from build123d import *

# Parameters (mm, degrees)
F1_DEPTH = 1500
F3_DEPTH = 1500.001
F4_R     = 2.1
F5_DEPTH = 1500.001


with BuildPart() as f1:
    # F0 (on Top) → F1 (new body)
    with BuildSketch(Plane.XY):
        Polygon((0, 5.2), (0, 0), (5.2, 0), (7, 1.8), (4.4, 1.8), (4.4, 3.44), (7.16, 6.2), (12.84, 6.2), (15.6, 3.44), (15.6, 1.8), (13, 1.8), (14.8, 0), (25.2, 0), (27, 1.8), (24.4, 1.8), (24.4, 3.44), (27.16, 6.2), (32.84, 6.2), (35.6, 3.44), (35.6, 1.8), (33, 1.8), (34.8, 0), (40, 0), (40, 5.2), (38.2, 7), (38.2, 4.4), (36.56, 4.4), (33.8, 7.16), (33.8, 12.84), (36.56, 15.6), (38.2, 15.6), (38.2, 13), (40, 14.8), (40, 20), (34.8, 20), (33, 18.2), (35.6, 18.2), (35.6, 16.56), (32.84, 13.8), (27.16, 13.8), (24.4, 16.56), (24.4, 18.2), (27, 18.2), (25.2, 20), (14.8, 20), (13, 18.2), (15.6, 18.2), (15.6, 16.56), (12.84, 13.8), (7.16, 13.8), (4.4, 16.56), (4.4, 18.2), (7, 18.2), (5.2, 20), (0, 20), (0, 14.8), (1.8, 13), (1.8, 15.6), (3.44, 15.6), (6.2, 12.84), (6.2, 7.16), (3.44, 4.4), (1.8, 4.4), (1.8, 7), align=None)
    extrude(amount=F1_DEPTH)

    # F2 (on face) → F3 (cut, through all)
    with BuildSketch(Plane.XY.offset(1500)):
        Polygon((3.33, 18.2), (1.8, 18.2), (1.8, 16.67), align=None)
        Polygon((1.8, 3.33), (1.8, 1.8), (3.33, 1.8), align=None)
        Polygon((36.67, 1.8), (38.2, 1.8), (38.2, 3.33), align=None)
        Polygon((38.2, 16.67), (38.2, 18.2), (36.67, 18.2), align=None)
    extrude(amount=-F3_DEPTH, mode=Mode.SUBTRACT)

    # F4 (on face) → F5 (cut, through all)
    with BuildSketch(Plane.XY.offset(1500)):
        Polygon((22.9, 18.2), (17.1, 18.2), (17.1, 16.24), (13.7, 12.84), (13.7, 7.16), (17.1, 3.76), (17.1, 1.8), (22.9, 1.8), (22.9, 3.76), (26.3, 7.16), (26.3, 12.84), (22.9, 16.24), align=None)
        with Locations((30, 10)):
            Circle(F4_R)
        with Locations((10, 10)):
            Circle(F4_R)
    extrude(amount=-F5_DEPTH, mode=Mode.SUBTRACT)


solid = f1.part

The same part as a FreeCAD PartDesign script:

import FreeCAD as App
import Part
import Sketcher

V = App.Vector
Q = App.Units.Quantity

doc = App.newDocument("Part")
body = doc.addObject("PartDesign::Body", "Body")

# Sketch on XY plane
sketch1 = body.newObject("Sketcher::SketchObject", "Sketch")
sketch1.AttachmentSupport = (doc.getObject("XY_Plane"), [""])
sketch1.MapMode = "FlatFace"
sketch1.addGeometry(Part.LineSegment(V(0, 5.2, 0), V(0, 0, 0)), False)
sketch1.addGeometry(Part.LineSegment(V(0, 0, 0), V(5.2, 0, 0)), False)
sketch1.addGeometry(Part.LineSegment(V(5.2, 0, 0), V(7, 1.8, 0)), False)
sketch1.addGeometry(Part.LineSegment(V(7, 1.8, 0), V(4.4, 1.8, 0)), False)
sketch1.addGeometry(Part.LineSegment(V(4.4, 1.8, 0), V(4.4, 3.4, 0)), False)
sketch1.addGeometry(Part.LineSegment(V(4.4, 3.4, 0), V(7.2, 6.2, 0)), False)
sketch1.addGeometry(Part.LineSegment(V(7.2, 6.2, 0), V(12.8, 6.2, 0)), False)
sketch1.addGeometry(Part.LineSegment(V(12.8, 6.2, 0), V(15.6, 3.4, 0)), False)
sketch1.addGeometry(Part.LineSegment(V(15.6, 3.4, 0), V(15.6, 1.8, 0)), False)
sketch1.addGeometry(Part.LineSegment(V(15.6, 1.8, 0), V(13, 1.8, 0)), False)
sketch1.addGeometry(Part.LineSegment(V(13, 1.8, 0), V(14.8, 0, 0)), False)
sketch1.addGeometry(Part.LineSegment(V(14.8, 0, 0), V(25.2, 0, 0)), False)
sketch1.addGeometry(Part.LineSegment(V(25.2, 0, 0), V(27, 1.8, 0)), False)
sketch1.addGeometry(Part.LineSegment(V(27, 1.8, 0), V(24.4, 1.8, 0)), False)
sketch1.addGeometry(Part.LineSegment(V(24.4, 1.8, 0), V(24.4, 3.4, 0)), False)
sketch1.addGeometry(Part.LineSegment(V(24.4, 3.4, 0), V(27.2, 6.2, 0)), False)
sketch1.addGeometry(Part.LineSegment(V(27.2, 6.2, 0), V(32.8, 6.2, 0)), False)
sketch1.addGeometry(Part.LineSegment(V(32.8, 6.2, 0), V(35.6, 3.4, 0)), False)
sketch1.addGeometry(Part.LineSegment(V(35.6, 3.4, 0), V(35.6, 1.8, 0)), False)
sketch1.addGeometry(Part.LineSegment(V(35.6, 1.8, 0), V(33, 1.8, 0)), False)
sketch1.addGeometry(Part.LineSegment(V(33, 1.8, 0), V(34.8, 0, 0)), False)
sketch1.addGeometry(Part.LineSegment(V(34.8, 0, 0), V(40, 0, 0)), False)
sketch1.addGeometry(Part.LineSegment(V(40, 0, 0), V(40, 5.2, 0)), False)
sketch1.addGeometry(Part.LineSegment(V(40, 5.2, 0), V(38.2, 7, 0)), False)
sketch1.addGeometry(Part.LineSegment(V(38.2, 7, 0), V(38.2, 4.4, 0)), False)
sketch1.addGeometry(Part.LineSegment(V(38.2, 4.4, 0), V(36.6, 4.4, 0)), False)
sketch1.addGeometry(Part.LineSegment(V(36.6, 4.4, 0), V(33.8, 7.2, 0)), False)
sketch1.addGeometry(Part.LineSegment(V(33.8, 7.2, 0), V(33.8, 12.8, 0)), False)
sketch1.addGeometry(Part.LineSegment(V(33.8, 12.8, 0), V(36.6, 15.6, 0)), False)
sketch1.addGeometry(Part.LineSegment(V(36.6, 15.6, 0), V(38.2, 15.6, 0)), False)
sketch1.addGeometry(Part.LineSegment(V(38.2, 15.6, 0), V(38.2, 13, 0)), False)
sketch1.addGeometry(Part.LineSegment(V(38.2, 13, 0), V(40, 14.8, 0)), False)
sketch1.addGeometry(Part.LineSegment(V(40, 14.8, 0), V(40, 20, 0)), False)
sketch1.addGeometry(Part.LineSegment(V(40, 20, 0), V(34.8, 20, 0)), False)
sketch1.addGeometry(Part.LineSegment(V(34.8, 20, 0), V(33, 18.2, 0)), False)
sketch1.addGeometry(Part.LineSegment(V(33, 18.2, 0), V(35.6, 18.2, 0)), False)
sketch1.addGeometry(Part.LineSegment(V(35.6, 18.2, 0), V(35.6, 16.6, 0)), False)
sketch1.addGeometry(Part.LineSegment(V(35.6, 16.6, 0), V(32.8, 13.8, 0)), False)
sketch1.addGeometry(Part.LineSegment(V(32.8, 13.8, 0), V(27.2, 13.8, 0)), False)
sketch1.addGeometry(Part.LineSegment(V(27.2, 13.8, 0), V(24.4, 16.6, 0)), False)
sketch1.addGeometry(Part.LineSegment(V(24.4, 16.6, 0), V(24.4, 18.2, 0)), False)
sketch1.addGeometry(Part.LineSegment(V(24.4, 18.2, 0), V(27, 18.2, 0)), False)
sketch1.addGeometry(Part.LineSegment(V(27, 18.2, 0), V(25.2, 20, 0)), False)
sketch1.addGeometry(Part.LineSegment(V(25.2, 20, 0), V(14.8, 20, 0)), False)
sketch1.addGeometry(Part.LineSegment(V(14.8, 20, 0), V(13, 18.2, 0)), False)
sketch1.addGeometry(Part.LineSegment(V(13, 18.2, 0), V(15.6, 18.2, 0)), False)
sketch1.addGeometry(Part.LineSegment(V(15.6, 18.2, 0), V(15.6, 16.6, 0)), False)
sketch1.addGeometry(Part.LineSegment(V(15.6, 16.6, 0), V(12.8, 13.8, 0)), False)
sketch1.addGeometry(Part.LineSegment(V(12.8, 13.8, 0), V(7.2, 13.8, 0)), False)
sketch1.addGeometry(Part.LineSegment(V(7.2, 13.8, 0), V(4.4, 16.6, 0)), False)
sketch1.addGeometry(Part.LineSegment(V(4.4, 16.6, 0), V(4.4, 18.2, 0)), False)
sketch1.addGeometry(Part.LineSegment(V(4.4, 18.2, 0), V(7, 18.2, 0)), False)
sketch1.addGeometry(Part.LineSegment(V(7, 18.2, 0), V(5.2, 20, 0)), False)
sketch1.addGeometry(Part.LineSegment(V(5.2, 20, 0), V(0, 20, 0)), False)
sketch1.addGeometry(Part.LineSegment(V(0, 20, 0), V(0, 14.8, 0)), False)
sketch1.addGeometry(Part.LineSegment(V(0, 14.8, 0), V(1.8, 13, 0)), False)
sketch1.addGeometry(Part.LineSegment(V(1.8, 13, 0), V(1.8, 15.6, 0)), False)
sketch1.addGeometry(Part.LineSegment(V(1.8, 15.6, 0), V(3.4, 15.6, 0)), False)
sketch1.addGeometry(Part.LineSegment(V(3.4, 15.6, 0), V(6.2, 12.8, 0)), False)
sketch1.addGeometry(Part.LineSegment(V(6.2, 12.8, 0), V(6.2, 7.2, 0)), False)
sketch1.addGeometry(Part.LineSegment(V(6.2, 7.2, 0), V(3.4, 4.4, 0)), False)
sketch1.addGeometry(Part.LineSegment(V(3.4, 4.4, 0), V(1.8, 4.4, 0)), False)
sketch1.addGeometry(Part.LineSegment(V(1.8, 4.4, 0), V(1.8, 7, 0)), False)
sketch1.addGeometry(Part.LineSegment(V(1.8, 7, 0), V(0, 5.2, 0)), False)
sketch1.addConstraint(Sketcher.Constraint("Coincident", 0, 2, 1, 1))
sketch1.addConstraint(Sketcher.Constraint("Coincident", 1, 2, 2, 1))
sketch1.addConstraint(Sketcher.Constraint("Coincident", 2, 2, 3, 1))
sketch1.addConstraint(Sketcher.Constraint("Coincident", 3, 2, 4, 1))
sketch1.addConstraint(Sketcher.Constraint("Coincident", 4, 2, 5, 1))
sketch1.addConstraint(Sketcher.Constraint("Coincident", 5, 2, 6, 1))
sketch1.addConstraint(Sketcher.Constraint("Coincident", 6, 2, 7, 1))
sketch1.addConstraint(Sketcher.Constraint("Coincident", 7, 2, 8, 1))
sketch1.addConstraint(Sketcher.Constraint("Coincident", 8, 2, 9, 1))
sketch1.addConstraint(Sketcher.Constraint("Coincident", 9, 2, 10, 1))
sketch1.addConstraint(Sketcher.Constraint("Coincident", 10, 2, 11, 1))
sketch1.addConstraint(Sketcher.Constraint("Coincident", 11, 2, 12, 1))
sketch1.addConstraint(Sketcher.Constraint("Coincident", 12, 2, 13, 1))
sketch1.addConstraint(Sketcher.Constraint("Coincident", 13, 2, 14, 1))
sketch1.addConstraint(Sketcher.Constraint("Coincident", 14, 2, 15, 1))
sketch1.addConstraint(Sketcher.Constraint("Coincident", 15, 2, 16, 1))
sketch1.addConstraint(Sketcher.Constraint("Coincident", 16, 2, 17, 1))
sketch1.addConstraint(Sketcher.Constraint("Coincident", 17, 2, 18, 1))
sketch1.addConstraint(Sketcher.Constraint("Coincident", 18, 2, 19, 1))
sketch1.addConstraint(Sketcher.Constraint("Coincident", 19, 2, 20, 1))
sketch1.addConstraint(Sketcher.Constraint("Coincident", 20, 2, 21, 1))
sketch1.addConstraint(Sketcher.Constraint("Coincident", 21, 2, 22, 1))
sketch1.addConstraint(Sketcher.Constraint("Coincident", 22, 2, 23, 1))
sketch1.addConstraint(Sketcher.Constraint("Coincident", 23, 2, 24, 1))
sketch1.addConstraint(Sketcher.Constraint("Coincident", 24, 2, 25, 1))
sketch1.addConstraint(Sketcher.Constraint("Coincident", 25, 2, 26, 1))
sketch1.addConstraint(Sketcher.Constraint("Coincident", 26, 2, 27, 1))
sketch1.addConstraint(Sketcher.Constraint("Coincident", 27, 2, 28, 1))
sketch1.addConstraint(Sketcher.Constraint("Coincident", 28, 2, 29, 1))
sketch1.addConstraint(Sketcher.Constraint("Coincident", 29, 2, 30, 1))
sketch1.addConstraint(Sketcher.Constraint("Coincident", 30, 2, 31, 1))
sketch1.addConstraint(Sketcher.Constraint("Coincident", 31, 2, 32, 1))
sketch1.addConstraint(Sketcher.Constraint("Coincident", 32, 2, 33, 1))
sketch1.addConstraint(Sketcher.Constraint("Coincident", 33, 2, 34, 1))
sketch1.addConstraint(Sketcher.Constraint("Coincident", 34, 2, 35, 1))
sketch1.addConstraint(Sketcher.Constraint("Coincident", 35, 2, 36, 1))
sketch1.addConstraint(Sketcher.Constraint("Coincident", 36, 2, 37, 1))
sketch1.addConstraint(Sketcher.Constraint("Coincident", 37, 2, 38, 1))
sketch1.addConstraint(Sketcher.Constraint("Coincident", 38, 2, 39, 1))
sketch1.addConstraint(Sketcher.Constraint("Coincident", 39, 2, 40, 1))
sketch1.addConstraint(Sketcher.Constraint("Coincident", 40, 2, 41, 1))
sketch1.addConstraint(Sketcher.Constraint("Coincident", 41, 2, 42, 1))
sketch1.addConstraint(Sketcher.Constraint("Coincident", 42, 2, 43, 1))
sketch1.addConstraint(Sketcher.Constraint("Coincident", 43, 2, 44, 1))
sketch1.addConstraint(Sketcher.Constraint("Coincident", 44, 2, 45, 1))
sketch1.addConstraint(Sketcher.Constraint("Coincident", 45, 2, 46, 1))
sketch1.addConstraint(Sketcher.Constraint("Coincident", 46, 2, 47, 1))
sketch1.addConstraint(Sketcher.Constraint("Coincident", 47, 2, 48, 1))
sketch1.addConstraint(Sketcher.Constraint("Coincident", 48, 2, 49, 1))
sketch1.addConstraint(Sketcher.Constraint("Coincident", 49, 2, 50, 1))
sketch1.addConstraint(Sketcher.Constraint("Coincident", 50, 2, 51, 1))
sketch1.addConstraint(Sketcher.Constraint("Coincident", 51, 2, 52, 1))
sketch1.addConstraint(Sketcher.Constraint("Coincident", 52, 2, 53, 1))
sketch1.addConstraint(Sketcher.Constraint("Coincident", 53, 2, 54, 1))
sketch1.addConstraint(Sketcher.Constraint("Coincident", 54, 2, 55, 1))
sketch1.addConstraint(Sketcher.Constraint("Coincident", 55, 2, 56, 1))
sketch1.addConstraint(Sketcher.Constraint("Coincident", 56, 2, 57, 1))
sketch1.addConstraint(Sketcher.Constraint("Coincident", 57, 2, 58, 1))
sketch1.addConstraint(Sketcher.Constraint("Coincident", 58, 2, 59, 1))
sketch1.addConstraint(Sketcher.Constraint("Coincident", 59, 2, 60, 1))
sketch1.addConstraint(Sketcher.Constraint("Coincident", 60, 2, 61, 1))
sketch1.addConstraint(Sketcher.Constraint("Coincident", 61, 2, 62, 1))
sketch1.addConstraint(Sketcher.Constraint("Coincident", 62, 2, 63, 1))
sketch1.addConstraint(Sketcher.Constraint("Coincident", 63, 2, 0, 1))
sketch1.addConstraint(Sketcher.Constraint("Vertical", 0))
sketch1.addConstraint(Sketcher.Constraint("Horizontal", 1))
sketch1.addConstraint(Sketcher.Constraint("Horizontal", 3))
sketch1.addConstraint(Sketcher.Constraint("Vertical", 4))
sketch1.addConstraint(Sketcher.Constraint("Horizontal", 6))
sketch1.addConstraint(Sketcher.Constraint("Vertical", 8))
sketch1.addConstraint(Sketcher.Constraint("Horizontal", 9))
sketch1.addConstraint(Sketcher.Constraint("Horizontal", 11))
sketch1.addConstraint(Sketcher.Constraint("Horizontal", 13))
sketch1.addConstraint(Sketcher.Constraint("Vertical", 14))
sketch1.addConstraint(Sketcher.Constraint("Horizontal", 16))
sketch1.addConstraint(Sketcher.Constraint("Vertical", 18))
sketch1.addConstraint(Sketcher.Constraint("Horizontal", 19))
sketch1.addConstraint(Sketcher.Constraint("Horizontal", 21))
sketch1.addConstraint(Sketcher.Constraint("Vertical", 22))
sketch1.addConstraint(Sketcher.Constraint("Vertical", 24))
sketch1.addConstraint(Sketcher.Constraint("Horizontal", 25))
sketch1.addConstraint(Sketcher.Constraint("Vertical", 27))
sketch1.addConstraint(Sketcher.Constraint("Horizontal", 29))
sketch1.addConstraint(Sketcher.Constraint("Vertical", 30))
sketch1.addConstraint(Sketcher.Constraint("Vertical", 32))
sketch1.addConstraint(Sketcher.Constraint("Horizontal", 33))
sketch1.addConstraint(Sketcher.Constraint("Horizontal", 35))
sketch1.addConstraint(Sketcher.Constraint("Vertical", 36))
sketch1.addConstraint(Sketcher.Constraint("Horizontal", 38))
sketch1.addConstraint(Sketcher.Constraint("Vertical", 40))
sketch1.addConstraint(Sketcher.Constraint("Horizontal", 41))
sketch1.addConstraint(Sketcher.Constraint("Horizontal", 43))
sketch1.addConstraint(Sketcher.Constraint("Horizontal", 45))
sketch1.addConstraint(Sketcher.Constraint("Vertical", 46))
sketch1.addConstraint(Sketcher.Constraint("Horizontal", 48))
sketch1.addConstraint(Sketcher.Constraint("Vertical", 50))
sketch1.addConstraint(Sketcher.Constraint("Horizontal", 51))
sketch1.addConstraint(Sketcher.Constraint("Horizontal", 53))
sketch1.addConstraint(Sketcher.Constraint("Vertical", 54))
sketch1.addConstraint(Sketcher.Constraint("Vertical", 56))
sketch1.addConstraint(Sketcher.Constraint("Horizontal", 57))
sketch1.addConstraint(Sketcher.Constraint("Vertical", 59))
sketch1.addConstraint(Sketcher.Constraint("Horizontal", 61))
sketch1.addConstraint(Sketcher.Constraint("Vertical", 62))
sketch1.addConstraint(Sketcher.Constraint("Coincident", 0, 2, -1, 1))
sketch1.addConstraint(Sketcher.Constraint("PointOnObject", 10, 2, -1))
sketch1.addConstraint(Sketcher.Constraint("PointOnObject", 20, 2, -1))
sketch1.addConstraint(Sketcher.Constraint("PointOnObject", 53, 2, -2))
sketch1.addConstraint(Sketcher.Constraint("Parallel", 2, 5))
sketch1.addConstraint(Sketcher.Constraint("Perpendicular", 5, 7))
sketch1.addConstraint(Sketcher.Constraint("Parallel", 7, 10))
sketch1.addConstraint(Sketcher.Constraint("Perpendicular", 10, 12))
sketch1.addConstraint(Sketcher.Constraint("Parallel", 12, 15))
sketch1.addConstraint(Sketcher.Constraint("Perpendicular", 15, 17))
sketch1.addConstraint(Sketcher.Constraint("Parallel", 17, 20))
sketch1.addConstraint(Sketcher.Constraint("Parallel", 20, 23))
sketch1.addConstraint(Sketcher.Constraint("Parallel", 23, 26))
sketch1.addConstraint(Sketcher.Constraint("Perpendicular", 26, 28))
sketch1.addConstraint(Sketcher.Constraint("Parallel", 28, 31))
sketch1.addConstraint(Sketcher.Constraint("Parallel", 31, 34))
sketch1.addConstraint(Sketcher.Constraint("Parallel", 34, 37))
sketch1.addConstraint(Sketcher.Constraint("Perpendicular", 37, 39))
sketch1.addConstraint(Sketcher.Constraint("Parallel", 39, 42))
sketch1.addConstraint(Sketcher.Constraint("Perpendicular", 42, 44))
sketch1.addConstraint(Sketcher.Constraint("Parallel", 44, 47))
sketch1.addConstraint(Sketcher.Constraint("Perpendicular", 47, 49))
sketch1.addConstraint(Sketcher.Constraint("Parallel", 49, 52))
sketch1.addConstraint(Sketcher.Constraint("Parallel", 52, 55))
sketch1.addConstraint(Sketcher.Constraint("Parallel", 55, 58))
sketch1.addConstraint(Sketcher.Constraint("Perpendicular", 58, 60))
sketch1.addConstraint(Sketcher.Constraint("Parallel", 60, 63))
sketch1.addConstraint(Sketcher.Constraint("Horizontal", 4, 2, 7, 2))
sketch1.addConstraint(Sketcher.Constraint("Horizontal", 3, 2, 8, 2))
sketch1.addConstraint(Sketcher.Constraint("Horizontal", 9, 2, 12, 2))
sketch1.addConstraint(Sketcher.Constraint("Horizontal", 7, 2, 14, 2))
sketch1.addConstraint(Sketcher.Constraint("Horizontal", 6, 2, 15, 2))
sketch1.addConstraint(Sketcher.Constraint("Horizontal", 14, 2, 17, 2))
sketch1.addConstraint(Sketcher.Constraint("Horizontal", 13, 2, 18, 2))
sketch1.addConstraint(Sketcher.Constraint("Horizontal", 36, 2, 39, 2))
sketch1.addConstraint(Sketcher.Constraint("Horizontal", 35, 2, 40, 2))
sketch1.addConstraint(Sketcher.Constraint("Horizontal", 33, 2, 42, 2))
sketch1.addConstraint(Sketcher.Constraint("Horizontal", 41, 2, 44, 2))
sketch1.addConstraint(Sketcher.Constraint("Horizontal", 39, 2, 46, 2))
sketch1.addConstraint(Sketcher.Constraint("Horizontal", 38, 2, 47, 2))
sketch1.addConstraint(Sketcher.Constraint("Horizontal", 46, 2, 49, 2))
sketch1.addConstraint(Sketcher.Constraint("Horizontal", 45, 2, 50, 2))
sketch1.addConstraint(Sketcher.Constraint("Horizontal", 43, 2, 52, 2))
sketch1.addConstraint(Sketcher.Constraint("Horizontal", 31, 2, 54, 2))
sketch1.addConstraint(Sketcher.Constraint("Horizontal", 30, 2, 55, 2))
sketch1.addConstraint(Sketcher.Constraint("Horizontal", 29, 2, 56, 2))
sketch1.addConstraint(Sketcher.Constraint("Horizontal", 27, 2, 58, 2))
sketch1.addConstraint(Sketcher.Constraint("Horizontal", 26, 2, 59, 2))
sketch1.addConstraint(Sketcher.Constraint("Horizontal", 25, 2, 60, 2))
sketch1.addConstraint(Sketcher.Constraint("Horizontal", 23, 2, 62, 2))
sketch1.addConstraint(Sketcher.Constraint("Horizontal", 22, 2, 63, 2))
sketch1.addConstraint(Sketcher.Constraint("Vertical", 25, 2, 28, 2))
sketch1.addConstraint(Sketcher.Constraint("Vertical", 24, 2, 29, 2))
sketch1.addConstraint(Sketcher.Constraint("Vertical", 22, 2, 31, 2))
sketch1.addConstraint(Sketcher.Constraint("Vertical", 20, 2, 33, 2))
sketch1.addConstraint(Sketcher.Constraint("Vertical", 19, 2, 34, 2))
sketch1.addConstraint(Sketcher.Constraint("Vertical", 18, 2, 35, 2))
sketch1.addConstraint(Sketcher.Constraint("Vertical", 16, 2, 37, 2))
sketch1.addConstraint(Sketcher.Constraint("Vertical", 15, 2, 38, 2))
sketch1.addConstraint(Sketcher.Constraint("Vertical", 14, 2, 39, 2))
sketch1.addConstraint(Sketcher.Constraint("Vertical", 12, 2, 41, 2))
sketch1.addConstraint(Sketcher.Constraint("Vertical", 10, 2, 43, 2))
sketch1.addConstraint(Sketcher.Constraint("Vertical", 8, 2, 45, 2))
sketch1.addConstraint(Sketcher.Constraint("Vertical", 5, 2, 48, 2))
sketch1.addConstraint(Sketcher.Constraint("Vertical", 2, 2, 51, 2))
sketch1.addConstraint(Sketcher.Constraint("Equal", 3, 9))
sketch1.addConstraint(Sketcher.Constraint("Equal", 9, 13))
sketch1.addConstraint(Sketcher.Constraint("Equal", 6, 16))
sketch1.addConstraint(Sketcher.Constraint("Equal", 13, 19))
sketch1.addConstraint(Sketcher.Constraint("Equal", 1, 21))
sketch1.addConstraint(Sketcher.Constraint("Equal", 29, 57))
sketch1.addConstraint(Sketcher.Constraint("Equal", 53, 0))
sketch1.addConstraint(Sketcher.Constraint("Equal", 61, 4))
sketch1.addConstraint(Sketcher.Constraint("Equal", 51, 24))
sketch1.addConstraint(Sketcher.Constraint("Equal", 48, 27))
sketch1.addConstraint(Sketcher.Constraint("Equal", 24, 30))
sketch1.addConstraint(Sketcher.Constraint("Equal", 22, 32))
sketch1.addConstraint(Sketcher.Constraint("Equal", 18, 36))
sketch1.addConstraint(Sketcher.Constraint("Equal", 20, 23))
sketch1.addConstraint(Sketcher.Constraint("Equal", 17, 26))
sketch1.addConstraint(Sketcher.Constraint("DistanceX", 1, 1, 1, 2, Q("5.2 mm")))
sketch1.addConstraint(Sketcher.Constraint("DistanceX", 3, 2, 3, 1, Q("2.6 mm")))
sketch1.addConstraint(Sketcher.Constraint("DistanceX", 11, 1, 11, 2, Q("10.4 mm")))
sketch1.addConstraint(Sketcher.Constraint("DistanceX", -1, 1, 2, 2, Q("7 mm")))
sketch1.addConstraint(Sketcher.Constraint("DistanceX", -1, 1, 9, 2, Q("13 mm")))
sketch1.addConstraint(Sketcher.Constraint("DistanceX", 6, 1, 6, 2, Q("5.68 mm")))
sketch1.addConstraint(Sketcher.Constraint("DistanceX", 25, 2, 25, 1, Q("1.64 mm")))
pad1 = body.newObject("PartDesign::Pad", "Pad")
pad1.Profile = sketch1
pad1.Length = 1500

# Sketch on XY plane
sketch2 = body.newObject("Sketcher::SketchObject", "Sketch001")
sketch2.AttachmentSupport = (doc.getObject("XY_Plane"), [""])
sketch2.MapMode = "FlatFace"
sketch2.AttachmentOffset = App.Placement(V(0, 0, 1500), App.Rotation())
sketch2.addGeometry(Part.LineSegment(V(3.3, 18.2, 0), V(1.8, 18.2, 0)), False)
sketch2.addGeometry(Part.LineSegment(V(1.8, 18.2, 0), V(1.8, 16.7, 0)), False)
sketch2.addGeometry(Part.LineSegment(V(1.8, 16.7, 0), V(3.3, 18.2, 0)), False)
sketch2.addGeometry(Part.LineSegment(V(1.8, 3.3, 0), V(1.8, 1.8, 0)), False)
sketch2.addGeometry(Part.LineSegment(V(1.8, 1.8, 0), V(3.3, 1.8, 0)), False)
sketch2.addGeometry(Part.LineSegment(V(3.3, 1.8, 0), V(1.8, 3.3, 0)), False)
sketch2.addGeometry(Part.LineSegment(V(36.7, 1.8, 0), V(38.2, 1.8, 0)), False)
sketch2.addGeometry(Part.LineSegment(V(38.2, 1.8, 0), V(38.2, 3.3, 0)), False)
sketch2.addGeometry(Part.LineSegment(V(38.2, 3.3, 0), V(36.7, 1.8, 0)), False)
sketch2.addGeometry(Part.LineSegment(V(38.2, 16.7, 0), V(38.2, 18.2, 0)), False)
sketch2.addGeometry(Part.LineSegment(V(38.2, 18.2, 0), V(36.7, 18.2, 0)), False)
sketch2.addGeometry(Part.LineSegment(V(36.7, 18.2, 0), V(38.2, 16.7, 0)), False)
sketch2.addConstraint(Sketcher.Constraint("Coincident", 0, 2, 1, 1))
sketch2.addConstraint(Sketcher.Constraint("Coincident", 1, 2, 2, 1))
sketch2.addConstraint(Sketcher.Constraint("Coincident", 2, 2, 0, 1))
sketch2.addConstraint(Sketcher.Constraint("Coincident", 3, 2, 4, 1))
sketch2.addConstraint(Sketcher.Constraint("Coincident", 4, 2, 5, 1))
sketch2.addConstraint(Sketcher.Constraint("Coincident", 5, 2, 3, 1))
sketch2.addConstraint(Sketcher.Constraint("Coincident", 6, 2, 7, 1))
sketch2.addConstraint(Sketcher.Constraint("Coincident", 7, 2, 8, 1))
sketch2.addConstraint(Sketcher.Constraint("Coincident", 8, 2, 6, 1))
sketch2.addConstraint(Sketcher.Constraint("Coincident", 9, 2, 10, 1))
sketch2.addConstraint(Sketcher.Constraint("Coincident", 10, 2, 11, 1))
sketch2.addConstraint(Sketcher.Constraint("Coincident", 11, 2, 9, 1))
sketch2.addConstraint(Sketcher.Constraint("Horizontal", 0))
sketch2.addConstraint(Sketcher.Constraint("Vertical", 1))
sketch2.addConstraint(Sketcher.Constraint("Vertical", 3))
sketch2.addConstraint(Sketcher.Constraint("Horizontal", 4))
sketch2.addConstraint(Sketcher.Constraint("Horizontal", 6))
sketch2.addConstraint(Sketcher.Constraint("Vertical", 7))
sketch2.addConstraint(Sketcher.Constraint("Vertical", 9))
sketch2.addConstraint(Sketcher.Constraint("Horizontal", 10))
sketch2.addConstraint(Sketcher.Constraint("Perpendicular", 2, 5))
sketch2.addConstraint(Sketcher.Constraint("Perpendicular", 5, 8))
sketch2.addConstraint(Sketcher.Constraint("Perpendicular", 8, 11))
sketch2.addConstraint(Sketcher.Constraint("Horizontal", 4, 2, 6, 2))
sketch2.addConstraint(Sketcher.Constraint("Horizontal", 5, 2, 7, 2))
sketch2.addConstraint(Sketcher.Constraint("Horizontal", 2, 2, 9, 2))
sketch2.addConstraint(Sketcher.Constraint("Horizontal", 1, 2, 11, 2))
sketch2.addConstraint(Sketcher.Constraint("Vertical", 1, 2, 3, 2))
sketch2.addConstraint(Sketcher.Constraint("Vertical", 2, 2, 4, 2))
sketch2.addConstraint(Sketcher.Constraint("Vertical", 7, 2, 9, 2))
sketch2.addConstraint(Sketcher.Constraint("Vertical", 8, 2, 10, 2))
sketch2.addConstraint(Sketcher.Constraint("DistanceX", 0, 2, 0, 1, Q("1.53 mm")))
sketch2.addConstraint(Sketcher.Constraint("DistanceX", -1, 1, 0, 2, Q("1.8 mm")))
sketch2.addConstraint(Sketcher.Constraint("DistanceY", -1, 1, 0, 2, Q("18.2 mm")))
sketch2.addConstraint(Sketcher.Constraint("DistanceY", -1, 1, 3, 2, Q("1.8 mm")))
sketch2.addConstraint(Sketcher.Constraint("DistanceX", -1, 1, 6, 2, Q("38.2 mm")))
pocket1 = body.newObject("PartDesign::Pocket", "Pocket")
pocket1.Profile = sketch2
pocket1.Type = "ThroughAll"

# Sketch on XY plane
sketch3 = body.newObject("Sketcher::SketchObject", "Sketch002")
sketch3.AttachmentSupport = (doc.getObject("XY_Plane"), [""])
sketch3.MapMode = "FlatFace"
sketch3.AttachmentOffset = App.Placement(V(0, 0, 1500), App.Rotation())
sketch3.addGeometry(Part.LineSegment(V(22.9, 18.2, 0), V(17.1, 18.2, 0)), False)
sketch3.addGeometry(Part.LineSegment(V(17.1, 18.2, 0), V(17.1, 16.2, 0)), False)
sketch3.addGeometry(Part.LineSegment(V(17.1, 16.2, 0), V(13.7, 12.8, 0)), False)
sketch3.addGeometry(Part.LineSegment(V(13.7, 12.8, 0), V(13.7, 7.2, 0)), False)
sketch3.addGeometry(Part.LineSegment(V(13.7, 7.2, 0), V(17.1, 3.8, 0)), False)
sketch3.addGeometry(Part.LineSegment(V(17.1, 3.8, 0), V(17.1, 1.8, 0)), False)
sketch3.addGeometry(Part.LineSegment(V(17.1, 1.8, 0), V(22.9, 1.8, 0)), False)
sketch3.addGeometry(Part.LineSegment(V(22.9, 1.8, 0), V(22.9, 3.8, 0)), False)
sketch3.addGeometry(Part.LineSegment(V(22.9, 3.8, 0), V(26.3, 7.2, 0)), False)
sketch3.addGeometry(Part.LineSegment(V(26.3, 7.2, 0), V(26.3, 12.8, 0)), False)
sketch3.addGeometry(Part.LineSegment(V(26.3, 12.8, 0), V(22.9, 16.2, 0)), False)
sketch3.addGeometry(Part.LineSegment(V(22.9, 16.2, 0), V(22.9, 18.2, 0)), False)
sketch3.addGeometry(Part.Circle(V(30, 10, 0), V(0, 0, 1), 2.1), False)
sketch3.addGeometry(Part.Circle(V(10, 10, 0), V(0, 0, 1), 2.1), False)
sketch3.addConstraint(Sketcher.Constraint("Coincident", 0, 2, 1, 1))
sketch3.addConstraint(Sketcher.Constraint("Coincident", 1, 2, 2, 1))
sketch3.addConstraint(Sketcher.Constraint("Coincident", 2, 2, 3, 1))
sketch3.addConstraint(Sketcher.Constraint("Coincident", 3, 2, 4, 1))
sketch3.addConstraint(Sketcher.Constraint("Coincident", 4, 2, 5, 1))
sketch3.addConstraint(Sketcher.Constraint("Coincident", 5, 2, 6, 1))
sketch3.addConstraint(Sketcher.Constraint("Coincident", 6, 2, 7, 1))
sketch3.addConstraint(Sketcher.Constraint("Coincident", 7, 2, 8, 1))
sketch3.addConstraint(Sketcher.Constraint("Coincident", 8, 2, 9, 1))
sketch3.addConstraint(Sketcher.Constraint("Coincident", 9, 2, 10, 1))
sketch3.addConstraint(Sketcher.Constraint("Coincident", 10, 2, 11, 1))
sketch3.addConstraint(Sketcher.Constraint("Coincident", 11, 2, 0, 1))
sketch3.addConstraint(Sketcher.Constraint("Horizontal", 0))
sketch3.addConstraint(Sketcher.Constraint("Vertical", 1))
sketch3.addConstraint(Sketcher.Constraint("Vertical", 3))
sketch3.addConstraint(Sketcher.Constraint("Vertical", 5))
sketch3.addConstraint(Sketcher.Constraint("Horizontal", 6))
sketch3.addConstraint(Sketcher.Constraint("Vertical", 7))
sketch3.addConstraint(Sketcher.Constraint("Vertical", 9))
sketch3.addConstraint(Sketcher.Constraint("Vertical", 11))
sketch3.addConstraint(Sketcher.Constraint("Equal", 12, 13))
sketch3.addConstraint(Sketcher.Constraint("Perpendicular", 2, 4))
sketch3.addConstraint(Sketcher.Constraint("Perpendicular", 4, 8))
sketch3.addConstraint(Sketcher.Constraint("Perpendicular", 8, 10))
sketch3.addConstraint(Sketcher.Constraint("Horizontal", 12, 3, 13, 3))
sketch3.addConstraint(Sketcher.Constraint("Horizontal", 4, 2, 7, 2))
sketch3.addConstraint(Sketcher.Constraint("Horizontal", 3, 2, 8, 2))
sketch3.addConstraint(Sketcher.Constraint("Horizontal", 2, 2, 9, 2))
sketch3.addConstraint(Sketcher.Constraint("Horizontal", 1, 2, 10, 2))
sketch3.addConstraint(Sketcher.Constraint("Vertical", 1, 2, 4, 2))
sketch3.addConstraint(Sketcher.Constraint("Vertical", 7, 2, 10, 2))
sketch3.addConstraint(Sketcher.Constraint("Equal", 1, 5))
sketch3.addConstraint(Sketcher.Constraint("Diameter", 12, Q("4.2 mm")))
sketch3.addConstraint(Sketcher.Constraint("DistanceX", 0, 2, 0, 1, Q("5.8 mm")))
sketch3.addConstraint(Sketcher.Constraint("DistanceX", -1, 1, 12, 3, Q("30 mm")))
sketch3.addConstraint(Sketcher.Constraint("DistanceY", -1, 1, 12, 3, Q("10 mm")))
sketch3.addConstraint(Sketcher.Constraint("DistanceX", -1, 1, 13, 3, Q("10 mm")))
sketch3.addConstraint(Sketcher.Constraint("DistanceY", 1, 2, 1, 1, Q("1.96 mm")))
sketch3.addConstraint(Sketcher.Constraint("DistanceY", 3, 2, 3, 1, Q("5.68 mm")))
sketch3.addConstraint(Sketcher.Constraint("DistanceX", -1, 1, 0, 2, Q("17.1 mm")))
sketch3.addConstraint(Sketcher.Constraint("DistanceY", -1, 1, 0, 2, Q("18.2 mm")))
sketch3.addConstraint(Sketcher.Constraint("DistanceX", -1, 1, 2, 2, Q("13.7 mm")))
pocket2 = body.newObject("PartDesign::Pocket", "Pocket001")
pocket2.Profile = sketch3
pocket2.Type = "ThroughAll"

doc.recompute()
